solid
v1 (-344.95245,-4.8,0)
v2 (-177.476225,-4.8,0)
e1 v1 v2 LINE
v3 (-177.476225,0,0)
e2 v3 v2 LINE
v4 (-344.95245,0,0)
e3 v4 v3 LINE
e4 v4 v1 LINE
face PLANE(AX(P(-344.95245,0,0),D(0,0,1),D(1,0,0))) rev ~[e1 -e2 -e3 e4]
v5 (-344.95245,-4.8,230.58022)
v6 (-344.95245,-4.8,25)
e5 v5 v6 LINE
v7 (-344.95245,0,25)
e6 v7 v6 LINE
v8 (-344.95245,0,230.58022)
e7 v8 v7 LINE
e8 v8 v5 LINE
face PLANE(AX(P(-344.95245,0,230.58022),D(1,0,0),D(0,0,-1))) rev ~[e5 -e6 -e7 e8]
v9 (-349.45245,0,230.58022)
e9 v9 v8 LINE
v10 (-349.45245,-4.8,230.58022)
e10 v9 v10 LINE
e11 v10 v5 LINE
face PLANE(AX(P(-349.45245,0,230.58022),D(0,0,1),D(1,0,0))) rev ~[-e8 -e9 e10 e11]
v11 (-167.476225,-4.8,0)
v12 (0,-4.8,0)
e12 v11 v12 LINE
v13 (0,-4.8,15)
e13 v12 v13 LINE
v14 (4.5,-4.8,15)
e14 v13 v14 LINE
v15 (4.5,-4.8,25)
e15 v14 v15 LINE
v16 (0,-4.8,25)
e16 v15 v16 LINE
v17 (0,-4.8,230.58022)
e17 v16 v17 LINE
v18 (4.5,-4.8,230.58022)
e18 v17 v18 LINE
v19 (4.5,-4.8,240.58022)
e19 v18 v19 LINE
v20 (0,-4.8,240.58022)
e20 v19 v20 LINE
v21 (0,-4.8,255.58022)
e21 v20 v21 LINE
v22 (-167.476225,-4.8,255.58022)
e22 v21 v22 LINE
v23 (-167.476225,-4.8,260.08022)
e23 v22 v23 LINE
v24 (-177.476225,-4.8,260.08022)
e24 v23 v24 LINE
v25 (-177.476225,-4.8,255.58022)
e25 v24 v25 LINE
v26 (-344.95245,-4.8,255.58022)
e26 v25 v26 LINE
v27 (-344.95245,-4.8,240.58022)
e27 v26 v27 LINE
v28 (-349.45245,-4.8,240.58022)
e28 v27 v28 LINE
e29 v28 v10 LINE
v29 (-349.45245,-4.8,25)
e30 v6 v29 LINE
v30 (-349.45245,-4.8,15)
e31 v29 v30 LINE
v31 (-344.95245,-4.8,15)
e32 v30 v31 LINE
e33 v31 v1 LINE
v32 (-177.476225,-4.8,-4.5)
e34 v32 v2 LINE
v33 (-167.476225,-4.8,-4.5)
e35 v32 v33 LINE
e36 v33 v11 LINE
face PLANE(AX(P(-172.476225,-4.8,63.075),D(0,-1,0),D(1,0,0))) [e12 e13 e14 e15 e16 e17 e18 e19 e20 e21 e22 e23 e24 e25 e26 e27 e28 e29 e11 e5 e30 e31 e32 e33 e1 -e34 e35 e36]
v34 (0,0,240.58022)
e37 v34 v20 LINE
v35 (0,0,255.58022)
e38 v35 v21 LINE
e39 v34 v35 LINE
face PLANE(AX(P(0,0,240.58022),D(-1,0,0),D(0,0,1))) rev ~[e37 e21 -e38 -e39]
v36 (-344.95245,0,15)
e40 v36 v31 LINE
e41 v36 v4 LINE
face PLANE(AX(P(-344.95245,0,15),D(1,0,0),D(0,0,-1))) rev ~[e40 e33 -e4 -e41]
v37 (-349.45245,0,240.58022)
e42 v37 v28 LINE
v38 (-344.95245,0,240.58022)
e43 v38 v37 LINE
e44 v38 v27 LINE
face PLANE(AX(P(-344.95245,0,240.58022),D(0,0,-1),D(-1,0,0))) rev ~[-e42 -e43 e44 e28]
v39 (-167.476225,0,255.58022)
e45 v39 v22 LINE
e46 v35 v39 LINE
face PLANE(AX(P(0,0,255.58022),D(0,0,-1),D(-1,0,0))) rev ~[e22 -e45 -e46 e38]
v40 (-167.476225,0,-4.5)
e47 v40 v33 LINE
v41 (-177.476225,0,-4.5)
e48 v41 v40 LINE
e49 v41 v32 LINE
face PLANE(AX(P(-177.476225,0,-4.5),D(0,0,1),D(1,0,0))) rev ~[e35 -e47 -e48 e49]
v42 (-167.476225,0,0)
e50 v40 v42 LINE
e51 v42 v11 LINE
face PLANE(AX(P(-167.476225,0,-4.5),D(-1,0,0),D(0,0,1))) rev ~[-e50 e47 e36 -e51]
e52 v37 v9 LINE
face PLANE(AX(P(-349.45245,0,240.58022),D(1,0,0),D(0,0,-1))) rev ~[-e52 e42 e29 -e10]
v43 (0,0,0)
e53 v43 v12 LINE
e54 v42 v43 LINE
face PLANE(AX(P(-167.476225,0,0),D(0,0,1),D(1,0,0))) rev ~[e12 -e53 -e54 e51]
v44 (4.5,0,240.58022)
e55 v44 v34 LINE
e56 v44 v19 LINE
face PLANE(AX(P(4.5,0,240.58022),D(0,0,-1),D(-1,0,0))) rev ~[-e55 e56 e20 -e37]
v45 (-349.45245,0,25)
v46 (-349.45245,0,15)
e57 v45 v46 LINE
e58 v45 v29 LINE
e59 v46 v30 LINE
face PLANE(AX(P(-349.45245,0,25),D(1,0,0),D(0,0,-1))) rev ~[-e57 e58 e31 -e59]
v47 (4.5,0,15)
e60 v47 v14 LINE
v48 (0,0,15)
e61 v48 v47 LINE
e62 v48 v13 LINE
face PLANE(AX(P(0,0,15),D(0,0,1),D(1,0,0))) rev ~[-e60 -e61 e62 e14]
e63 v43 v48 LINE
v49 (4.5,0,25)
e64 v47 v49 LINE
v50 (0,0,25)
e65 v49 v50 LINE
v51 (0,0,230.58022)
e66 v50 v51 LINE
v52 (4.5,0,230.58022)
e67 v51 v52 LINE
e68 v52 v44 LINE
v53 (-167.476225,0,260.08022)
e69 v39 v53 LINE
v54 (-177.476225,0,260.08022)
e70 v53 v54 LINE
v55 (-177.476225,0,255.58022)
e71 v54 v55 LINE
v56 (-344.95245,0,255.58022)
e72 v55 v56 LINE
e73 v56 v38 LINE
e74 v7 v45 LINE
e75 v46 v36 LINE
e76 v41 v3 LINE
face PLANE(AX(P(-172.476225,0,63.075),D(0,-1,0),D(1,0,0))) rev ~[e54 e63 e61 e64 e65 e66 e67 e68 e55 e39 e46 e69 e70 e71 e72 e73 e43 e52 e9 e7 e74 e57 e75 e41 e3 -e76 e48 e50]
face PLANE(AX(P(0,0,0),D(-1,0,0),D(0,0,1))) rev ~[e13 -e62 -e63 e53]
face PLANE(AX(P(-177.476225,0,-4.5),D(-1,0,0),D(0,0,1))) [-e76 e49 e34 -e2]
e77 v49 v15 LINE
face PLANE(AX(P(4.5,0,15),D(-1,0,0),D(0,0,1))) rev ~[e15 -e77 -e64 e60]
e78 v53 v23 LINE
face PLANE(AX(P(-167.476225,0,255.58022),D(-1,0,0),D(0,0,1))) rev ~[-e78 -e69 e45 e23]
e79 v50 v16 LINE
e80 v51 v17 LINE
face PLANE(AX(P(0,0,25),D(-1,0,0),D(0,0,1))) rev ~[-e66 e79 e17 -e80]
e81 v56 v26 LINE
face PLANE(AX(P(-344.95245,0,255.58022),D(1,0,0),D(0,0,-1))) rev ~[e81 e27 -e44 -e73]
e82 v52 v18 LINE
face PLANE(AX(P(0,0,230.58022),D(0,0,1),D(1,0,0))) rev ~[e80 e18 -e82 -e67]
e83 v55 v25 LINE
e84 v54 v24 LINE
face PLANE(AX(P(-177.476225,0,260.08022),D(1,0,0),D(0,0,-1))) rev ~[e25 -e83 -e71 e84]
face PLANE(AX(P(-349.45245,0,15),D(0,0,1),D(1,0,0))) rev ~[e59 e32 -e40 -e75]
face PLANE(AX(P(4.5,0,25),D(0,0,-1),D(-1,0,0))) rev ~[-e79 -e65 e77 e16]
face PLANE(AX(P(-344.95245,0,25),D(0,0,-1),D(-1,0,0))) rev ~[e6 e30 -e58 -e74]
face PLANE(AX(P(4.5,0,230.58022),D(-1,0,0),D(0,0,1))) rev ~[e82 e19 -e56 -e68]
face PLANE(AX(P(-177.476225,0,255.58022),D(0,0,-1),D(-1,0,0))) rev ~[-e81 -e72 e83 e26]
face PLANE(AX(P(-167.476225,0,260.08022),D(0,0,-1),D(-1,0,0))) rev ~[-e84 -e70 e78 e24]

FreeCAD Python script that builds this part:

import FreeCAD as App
import Part
import Sketcher

V = App.Vector
Q = App.Units.Quantity

doc = App.newDocument("Part")
body = doc.addObject("PartDesign::Body", "Body")

# Sketch on XZ plane
sketch1 = body.newObject("Sketcher::SketchObject", "Sketch")
sketch1.AttachmentSupport = (doc.getObject("XZ_Plane"), [""])
sketch1.MapMode = "FlatFace"
sketch1.addGeometry([
    Part.LineSegment(V(0, 0, 0), V(0, 15, 0)),  # 0
    Part.LineSegment(V(0, 15, 0), V(4.5, 15, 0)),  # 1
    Part.LineSegment(V(4.5, 15, 0), V(4.5, 25, 0)),  # 2
    Part.LineSegment(V(4.5, 25, 0), V(0, 25, 0)),  # 3
    Part.LineSegment(V(0, 25, 0), V(0, 230.6, 0)),  # 4
    Part.LineSegment(V(0, 230.6, 0), V(4.5, 230.6, 0)),  # 5
    Part.LineSegment(V(4.5, 230.6, 0), V(4.5, 240.6, 0)),  # 6
    Part.LineSegment(V(4.5, 240.6, 0), V(0, 240.6, 0)),  # 7
    Part.LineSegment(V(0, 240.6, 0), V(0, 255.6, 0)),  # 8
    Part.LineSegment(V(0, 255.6, 0), V(-167.5, 255.6, 0)),  # 9
    Part.LineSegment(V(-167.5, 255.6, 0), V(-167.5, 260.1, 0)),  # 10
    Part.LineSegment(V(-167.5, 260.1, 0), V(-177.5, 260.1, 0)),  # 11
    Part.LineSegment(V(-177.5, 260.1, 0), V(-177.5, 255.6, 0)),  # 12
    Part.LineSegment(V(-177.5, 255.6, 0), V(-345, 255.6, 0)),  # 13
    Part.LineSegment(V(-345, 255.6, 0), V(-345, 240.6, 0)),  # 14
    Part.LineSegment(V(-345, 240.6, 0), V(-349.5, 240.6, 0)),  # 15
    Part.LineSegment(V(-349.5, 240.6, 0), V(-349.5, 230.6, 0)),  # 16
    Part.LineSegment(V(-349.5, 230.6, 0), V(-345, 230.6, 0)),  # 17
    Part.LineSegment(V(-345, 230.6, 0), V(-345, 25, 0)),  # 18
    Part.LineSegment(V(-345, 25, 0), V(-349.5, 25, 0)),  # 19
    Part.LineSegment(V(-349.5, 25, 0), V(-349.5, 15, 0)),  # 20
    Part.LineSegment(V(-349.5, 15, 0), V(-345, 15, 0)),  # 21
    Part.LineSegment(V(-345, 15, 0), V(-345, 0, 0)),  # 22
    Part.LineSegment(V(-345, 0, 0), V(-177.5, 0, 0)),  # 23
    Part.LineSegment(V(-177.5, 0, 0), V(-177.5, -4.5, 0)),  # 24
    Part.LineSegment(V(-177.5, -4.5, 0), V(-167.5, -4.5, 0)),  # 25
    Part.LineSegment(V(-167.5, -4.5, 0), V(-167.5, 0, 0)),  # 26
    Part.LineSegment(V(-167.5, 0, 0), V(0, 0, 0)),  # 27
], False)
sketch1.addConstraint([
    Sketcher.Constraint("Coincident", 0, 2, 1, 1),
    Sketcher.Constraint("Coincident", 1, 2, 2, 1),
    Sketcher.Constraint("Coincident", 2, 2, 3, 1),
    Sketcher.Constraint("Coincident", 3, 2, 4, 1),
    Sketcher.Constraint("Coincident", 4, 2, 5, 1),
    Sketcher.Constraint("Coincident", 5, 2, 6, 1),
    Sketcher.Constraint("Coincident", 6, 2, 7, 1),
    Sketcher.Constraint("Coincident", 7, 2, 8, 1),
    Sketcher.Constraint("Coincident", 8, 2, 9, 1),
    Sketcher.Constraint("Coincident", 9, 2, 10, 1),
    Sketcher.Constraint("Coincident", 10, 2, 11, 1),
    Sketcher.Constraint("Coincident", 11, 2, 12, 1),
    Sketcher.Constraint("Coincident", 12, 2, 13, 1),
    Sketcher.Constraint("Coincident", 13, 2, 14, 1),
    Sketcher.Constraint("Coincident", 14, 2, 15, 1),
    Sketcher.Constraint("Coincident", 15, 2, 16, 1),
    Sketcher.Constraint("Coincident", 16, 2, 17, 1),
    Sketcher.Constraint("Coincident", 17, 2, 18, 1),
    Sketcher.Constraint("Coincident", 18, 2, 19, 1),
    Sketcher.Constraint("Coincident", 19, 2, 20, 1),
    Sketcher.Constraint("Coincident", 20, 2, 21, 1),
    Sketcher.Constraint("Coincident", 21, 2, 22, 1),
    Sketcher.Constraint("Coincident", 22, 2, 23, 1),
    Sketcher.Constraint("Coincident", 23, 2, 24, 1),
    Sketcher.Constraint("Coincident", 24, 2, 25, 1),
    Sketcher.Constraint("Coincident", 25, 2, 26, 1),
    Sketcher.Constraint("Coincident", 26, 2, 27, 1),
    Sketcher.Constraint("Coincident", 27, 2, 0, 1),
    Sketcher.Constraint("Vertical", 0),
    Sketcher.Constraint("Horizontal", 1),
    Sketcher.Constraint("Vertical", 2),
    Sketcher.Constraint("Horizontal", 3),
    Sketcher.Constraint("Vertical", 4),
    Sketcher.Constraint("Horizontal", 5),
    Sketcher.Constraint("Vertical", 6),
    Sketcher.Constraint("Horizontal", 7),
    Sketcher.Constraint("Vertical", 8),
    Sketcher.Constraint("Horizontal", 9),
    Sketcher.Constraint("Vertical", 10),
    Sketcher.Constraint("Horizontal", 11),
    Sketcher.Constraint("Vertical", 12),
    Sketcher.Constraint("Horizontal", 13),
    Sketcher.Constraint("Vertical", 14),
    Sketcher.Constraint("Horizontal", 15),
    Sketcher.Constraint("Vertical", 16),
    Sketcher.Constraint("Horizontal", 17),
    Sketcher.Constraint("Vertical", 18),
    Sketcher.Constraint("Horizontal", 19),
    Sketcher.Constraint("Vertical", 20),
    Sketcher.Constraint("Horizontal", 21),
    Sketcher.Constraint("Vertical", 22),
    Sketcher.Constraint("Horizontal", 23),
    Sketcher.Constraint("Vertical", 24),
    Sketcher.Constraint("Horizontal", 25),
    Sketcher.Constraint("Vertical", 26),
    Sketcher.Constraint("Horizontal", 27),
    Sketcher.Constraint("Coincident", 27, 2, -1, 1),
    Sketcher.Constraint("PointOnObject", 3, 2, -2),
    Sketcher.Constraint("PointOnObject", 7, 2, -2),
    Sketcher.Constraint("PointOnObject", 22, 2, -1),
    Sketcher.Constraint("Horizontal", 9, 2, 12, 2),
    Sketcher.Constraint("Horizontal", 7, 2, 14, 2),
    Sketcher.Constraint("Horizontal", 5, 2, 16, 2),
    Sketcher.Constraint("Horizontal", 3, 2, 18, 2),
    Sketcher.Constraint("Horizontal", 1, 2, 20, 2),
    Sketcher.Constraint("Vertical", 2, 2, 5, 2),
    Sketcher.Constraint("Vertical", 14, 2, 17, 2),
    Sketcher.Constraint("Vertical", 16, 2, 19, 2),
    Sketcher.Constraint("Vertical", 18, 2, 21, 2),
    Sketcher.Constraint("Vertical", 12, 2, 23, 2),
    Sketcher.Constraint("Vertical", 10, 2, 25, 2),
    Sketcher.Constraint("Equal", 9, 13),
    Sketcher.Constraint("Equal", 7, 15),
    Sketcher.Constraint("Equal", 25, 2),
    Sketcher.Constraint("Equal", 2, 6),
    Sketcher.Constraint("Equal", 0, 8),
    Sketcher.Constraint("Equal", 21, 10),
    Sketcher.Constraint("Equal", 12, 24),
    Sketcher.Constraint("DistanceX", 11, 2, 11, 1, Q("10 mm")),
    Sketcher.Constraint("DistanceY", 0, 1, 0, 2, Q("15 mm")),
    Sketcher.Constraint("DistanceX", 1, 1, 1, 2, Q("4.5 mm")),
    Sketcher.Constraint("DistanceY", 4, 1, 4, 2, Q("205.58022 mm")),
    Sketcher.Constraint("DistanceX", 9, 2, 9, 1, Q("167.476225 mm")),
])
pad1 = body.newObject("PartDesign::Pad", "Pad")
pad1.Profile = sketch1
pad1.Length = 4.8

doc.recompute()
